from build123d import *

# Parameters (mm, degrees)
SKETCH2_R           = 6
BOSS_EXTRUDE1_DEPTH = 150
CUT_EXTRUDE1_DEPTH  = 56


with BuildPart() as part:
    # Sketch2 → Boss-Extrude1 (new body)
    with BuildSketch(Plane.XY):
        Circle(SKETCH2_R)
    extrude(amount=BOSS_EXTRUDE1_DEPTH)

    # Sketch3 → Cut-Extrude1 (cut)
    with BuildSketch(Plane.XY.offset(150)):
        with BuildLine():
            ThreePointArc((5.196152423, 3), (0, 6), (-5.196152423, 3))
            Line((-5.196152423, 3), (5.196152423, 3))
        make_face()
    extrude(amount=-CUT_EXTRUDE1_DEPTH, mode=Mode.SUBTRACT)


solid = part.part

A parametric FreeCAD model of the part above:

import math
import FreeCAD as App
import Part
import Sketcher
Q = App.Units.Quantity

doc = App.newDocument("Part")
params = doc.addObject("Spreadsheet::Sheet", "Params")
for row, (alias, value) in enumerate([
    ("sketch1_diameter", "12 mm"),
    ("pad1_length", "150 mm"),
    ("sketch2_radius", "6 mm"),
    ("pocket1_length", "56 mm"),
], start=1):
    params.set(f"A{row}", alias)
    params.set(f"B{row}", "=" + value)
    params.setAlias(f"B{row}", alias)

body = doc.addObject("PartDesign::Body", "Body")

# Sketch on XY plane
sketch1 = body.newObject("Sketcher::SketchObject", "Sketch")
sketch1.AttachmentSupport = (doc.getObject("XY_Plane"), [""])
sketch1.MapMode = "FlatFace"
sketch1.addGeometry(Part.Circle(App.Vector(0, 0, 0), App.Vector(0, 0, 1), 6), False)
sketch1.addConstraint([
    Sketcher.Constraint("Coincident", 0, 3, -1, 1),
    Sketcher.Constraint("Diameter", 0, Q("12 mm")),
])
sketch1.setExpression("Constraints[1]", "Params.sketch1_diameter")
pad1 = body.newObject("PartDesign::Pad", "Pad")
pad1.Profile = sketch1
pad1.setExpression("Length", "Params.pad1_length")

# Sketch on XY plane
sketch2 = body.newObject("Sketcher::SketchObject", "Sketch001")
sketch2.AttachmentSupport = (doc.getObject("XY_Plane"), [""])
sketch2.MapMode = "FlatFace"
sketch2.AttachmentOffset = App.Placement(App.Vector(0, 0, 150), App.Rotation())
sketch2.addGeometry([
    Part.ArcOfCircle(Part.Circle(App.Vector(0, 0, 0), App.Vector(0, 0, 1), 6), math.radians(30), math.radians(150)),
    Part.LineSegment(App.Vector(-5, 3, 0), App.Vector(5, 3, 0)),
], False)
sketch2.addConstraint([
    Sketcher.Constraint("Coincident", 0, 1, 1, 2),
    Sketcher.Constraint("Coincident", 1, 1, 0, 2),
    Sketcher.Constraint("Horizontal", 1),
    Sketcher.Constraint("Coincident", 0, 3, -1, 1),
    Sketcher.Constraint("Radius", 0, Q("6 mm")),
    Sketcher.Constraint("DistanceY", -1, 1, 0, 1, Q("3 mm")),
])
sketch2.setExpression("Constraints[4]", "Params.sketch2_radius")
pocket1 = body.newObject("PartDesign::Pocket", "Pocket")
pocket1.Profile = sketch2
pocket1.setExpression("Length", "Params.pocket1_length")

doc.recompute()
